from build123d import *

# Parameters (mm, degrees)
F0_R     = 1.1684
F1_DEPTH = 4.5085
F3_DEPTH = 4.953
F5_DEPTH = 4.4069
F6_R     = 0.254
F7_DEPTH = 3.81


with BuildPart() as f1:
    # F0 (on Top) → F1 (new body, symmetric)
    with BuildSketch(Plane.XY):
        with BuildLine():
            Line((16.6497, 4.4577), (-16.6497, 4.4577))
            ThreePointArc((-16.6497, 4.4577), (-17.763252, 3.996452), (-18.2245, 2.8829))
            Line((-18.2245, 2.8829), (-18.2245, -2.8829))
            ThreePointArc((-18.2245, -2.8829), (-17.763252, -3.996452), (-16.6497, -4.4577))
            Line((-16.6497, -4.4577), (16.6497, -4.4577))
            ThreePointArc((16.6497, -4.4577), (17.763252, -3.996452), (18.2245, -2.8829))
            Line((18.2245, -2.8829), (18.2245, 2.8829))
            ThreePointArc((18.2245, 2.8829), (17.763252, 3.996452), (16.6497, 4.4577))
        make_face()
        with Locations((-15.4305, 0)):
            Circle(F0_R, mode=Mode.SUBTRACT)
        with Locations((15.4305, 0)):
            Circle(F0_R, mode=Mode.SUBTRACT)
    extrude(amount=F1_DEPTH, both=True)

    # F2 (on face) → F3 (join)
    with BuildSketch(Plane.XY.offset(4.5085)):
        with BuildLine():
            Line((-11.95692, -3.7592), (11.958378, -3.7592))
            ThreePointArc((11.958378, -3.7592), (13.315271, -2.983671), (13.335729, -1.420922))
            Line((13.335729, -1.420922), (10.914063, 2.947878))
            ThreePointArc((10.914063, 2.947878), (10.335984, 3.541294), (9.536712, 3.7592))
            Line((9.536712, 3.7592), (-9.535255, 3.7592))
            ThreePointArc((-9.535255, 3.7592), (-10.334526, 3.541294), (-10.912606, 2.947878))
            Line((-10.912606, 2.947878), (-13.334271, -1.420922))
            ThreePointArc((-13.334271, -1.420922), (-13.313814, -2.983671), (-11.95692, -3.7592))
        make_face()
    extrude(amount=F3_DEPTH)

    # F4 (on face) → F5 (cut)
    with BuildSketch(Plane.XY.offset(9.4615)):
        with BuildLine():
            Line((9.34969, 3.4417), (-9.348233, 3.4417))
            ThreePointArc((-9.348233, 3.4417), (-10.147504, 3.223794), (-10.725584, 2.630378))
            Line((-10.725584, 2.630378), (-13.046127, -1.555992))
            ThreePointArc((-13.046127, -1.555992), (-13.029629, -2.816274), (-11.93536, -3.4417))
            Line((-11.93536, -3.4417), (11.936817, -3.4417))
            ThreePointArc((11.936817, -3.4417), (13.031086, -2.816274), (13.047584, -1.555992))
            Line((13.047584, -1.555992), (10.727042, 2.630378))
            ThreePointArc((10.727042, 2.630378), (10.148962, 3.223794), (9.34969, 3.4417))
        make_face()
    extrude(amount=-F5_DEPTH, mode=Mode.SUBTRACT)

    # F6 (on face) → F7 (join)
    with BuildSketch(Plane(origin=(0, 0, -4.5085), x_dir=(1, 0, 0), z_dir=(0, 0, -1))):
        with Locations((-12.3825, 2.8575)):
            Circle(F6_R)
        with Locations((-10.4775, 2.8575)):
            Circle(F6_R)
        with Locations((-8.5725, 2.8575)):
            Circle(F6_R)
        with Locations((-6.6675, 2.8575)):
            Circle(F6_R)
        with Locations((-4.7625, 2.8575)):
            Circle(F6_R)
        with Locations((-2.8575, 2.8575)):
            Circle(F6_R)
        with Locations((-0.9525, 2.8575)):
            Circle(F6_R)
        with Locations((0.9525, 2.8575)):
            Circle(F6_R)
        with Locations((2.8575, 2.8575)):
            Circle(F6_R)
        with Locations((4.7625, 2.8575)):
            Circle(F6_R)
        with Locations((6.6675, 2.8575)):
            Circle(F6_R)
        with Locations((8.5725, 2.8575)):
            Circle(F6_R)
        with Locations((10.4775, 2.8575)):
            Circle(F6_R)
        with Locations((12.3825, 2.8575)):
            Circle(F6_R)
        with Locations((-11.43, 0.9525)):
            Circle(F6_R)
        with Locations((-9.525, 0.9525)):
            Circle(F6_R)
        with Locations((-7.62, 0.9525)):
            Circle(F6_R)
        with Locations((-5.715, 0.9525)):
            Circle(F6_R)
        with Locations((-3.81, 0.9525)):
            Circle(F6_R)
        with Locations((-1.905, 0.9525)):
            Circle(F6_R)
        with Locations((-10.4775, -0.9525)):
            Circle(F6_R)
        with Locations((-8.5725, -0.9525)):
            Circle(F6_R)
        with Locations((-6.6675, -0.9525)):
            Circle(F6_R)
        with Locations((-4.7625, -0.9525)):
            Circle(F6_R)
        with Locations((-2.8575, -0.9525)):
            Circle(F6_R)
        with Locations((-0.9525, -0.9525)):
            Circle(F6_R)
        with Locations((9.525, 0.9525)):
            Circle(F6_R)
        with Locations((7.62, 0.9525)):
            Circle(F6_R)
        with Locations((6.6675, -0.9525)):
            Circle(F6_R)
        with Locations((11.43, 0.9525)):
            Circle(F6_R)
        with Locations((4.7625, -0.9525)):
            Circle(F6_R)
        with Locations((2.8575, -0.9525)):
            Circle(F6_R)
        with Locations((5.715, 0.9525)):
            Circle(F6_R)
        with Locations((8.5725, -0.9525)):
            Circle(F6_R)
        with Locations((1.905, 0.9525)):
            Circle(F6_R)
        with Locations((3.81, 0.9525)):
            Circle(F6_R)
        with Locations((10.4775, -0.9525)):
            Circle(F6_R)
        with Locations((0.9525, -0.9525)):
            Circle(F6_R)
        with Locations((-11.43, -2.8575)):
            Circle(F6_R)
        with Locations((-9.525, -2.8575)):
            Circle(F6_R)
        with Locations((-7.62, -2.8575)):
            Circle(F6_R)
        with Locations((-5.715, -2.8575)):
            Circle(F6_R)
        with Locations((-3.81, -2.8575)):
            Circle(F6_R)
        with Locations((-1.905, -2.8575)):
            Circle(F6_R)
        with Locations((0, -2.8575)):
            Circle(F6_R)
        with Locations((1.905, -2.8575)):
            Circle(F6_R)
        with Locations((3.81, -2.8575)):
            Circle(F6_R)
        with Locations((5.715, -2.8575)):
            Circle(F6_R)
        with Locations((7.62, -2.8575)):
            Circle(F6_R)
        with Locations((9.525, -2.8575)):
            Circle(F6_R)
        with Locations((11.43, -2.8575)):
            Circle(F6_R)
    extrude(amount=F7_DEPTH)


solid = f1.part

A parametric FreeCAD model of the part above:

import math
import FreeCAD as App
import Part
import Sketcher
from FreeCAD import Vector
Q = App.Units.Quantity

doc = App.newDocument("Part")
body = doc.addObject("PartDesign::Body", "Body")

sketch1 = doc.addObject("Sketcher::SketchObject", "Sketch")
body.addObject(sketch1)
sketch1.AttachmentSupport = (doc.XY_Plane, [""])
sketch1.MapMode = "FlatFace"
sketch1.addGeometry([
    Part.LineSegment(Vector(16.6, 4.5, 0), Vector(-16.6, 4.5, 0)),
    Part.ArcOfCircle(Part.Circle(Vector(-16.6, 2.9, 0), Vector(0, 0, 1), 1.6), math.radians(90), math.radians(180)),
    Part.LineSegment(Vector(-18.2, 2.9, 0), Vector(-18.2, -2.9, 0)),
    Part.ArcOfCircle(Part.Circle(Vector(-16.6, -2.9, 0), Vector(0, 0, 1), 1.6), math.radians(180), math.radians(270)),
    Part.LineSegment(Vector(-16.6, -4.5, 0), Vector(16.6, -4.5, 0)),
    Part.ArcOfCircle(Part.Circle(Vector(16.6, -2.9, 0), Vector(0, 0, 1), 1.6), math.radians(-90), math.radians(0)),
    Part.LineSegment(Vector(18.2, -2.9, 0), Vector(18.2, 2.9, 0)),
    Part.ArcOfCircle(Part.Circle(Vector(16.6, 2.9, 0), Vector(0, 0, 1), 1.6), math.radians(0), math.radians(90)),
    Part.Circle(Vector(-15.4, 0, 0), Vector(0, 0, 1), 1.2),
    Part.Circle(Vector(15.4, 0, 0), Vector(0, 0, 1), 1.2),
], False)
sketch1.addConstraint([
    Sketcher.Constraint("Tangent", 0, 2, 1, 1),
    Sketcher.Constraint("Tangent", 1, 2, 2, 1),
    Sketcher.Constraint("Tangent", 2, 2, 3, 1),
    Sketcher.Constraint("Tangent", 3, 2, 4, 1),
    Sketcher.Constraint("Tangent", 4, 2, 5, 1),
    Sketcher.Constraint("Tangent", 5, 2, 6, 1),
    Sketcher.Constraint("Tangent", 6, 2, 7, 1),
    Sketcher.Constraint("Tangent", 7, 2, 0, 1),
    Sketcher.Constraint("Horizontal", 0),
    Sketcher.Constraint("Vertical", 2),
    Sketcher.Constraint("Horizontal", 4),
    Sketcher.Constraint("Vertical", 6),
    Sketcher.Constraint("Equal", 1, 3),
    Sketcher.Constraint("Equal", 3, 5),
    Sketcher.Constraint("Equal", 5, 7),
    Sketcher.Constraint("Equal", 8, 9),
    Sketcher.Constraint("Symmetric", 1, 3, 5, 3, -1, 1),
    Sketcher.Constraint("Symmetric", 8, 3, 9, 3, -1, 1),
    Sketcher.Constraint("PointOnObject", 8, 3, -1),
    Sketcher.Constraint("Diameter", 8, Q("0.092 in")),
    Sketcher.Constraint("Radius", 1, Q("0.062 in")),
    Sketcher.Constraint("DistanceX", 0, 2, 0, 1, Q("1.311 in")),
    Sketcher.Constraint("DistanceY", 2, 2, 2, 1, Q("0.227 in")),
    Sketcher.Constraint("DistanceX", 1, 2, 8, 3, Q("0.11 in")),
])
pad1 = doc.addObject("PartDesign::Pad", "Pad")
body.addObject(pad1)
pad1.Profile = sketch1
pad1.Length = Q("0.355 in")
pad1.Midplane = True

sketch2 = doc.addObject("Sketcher::SketchObject", "Sketch001")
body.addObject(sketch2)
sketch2.AttachmentSupport = (doc.XY_Plane, [""])
sketch2.MapMode = "FlatFace"
sketch2.AttachmentOffset = App.Placement(Vector(0, 0, 0.1775 * 25.4), App.Rotation())
sketch2.addGeometry([
    Part.LineSegment(Vector(-12, -3.8, 0), Vector(12, -3.8, 0)),
    Part.ArcOfCircle(Part.Circle(Vector(12, -2.2, 0), Vector(0, 0, 1), 1.6), math.radians(-90), math.radians(29)),
    Part.LineSegment(Vector(13.3, -1.4, 0), Vector(10.9, 2.9, 0)),
    Part.ArcOfCircle(Part.Circle(Vector(9.5, 2.2, 0), Vector(0, 0, 1), 1.6), math.radians(29), math.radians(90)),
    Part.LineSegment(Vector(9.5, 3.8, 0), Vector(-9.5, 3.8, 0)),
    Part.ArcOfCircle(Part.Circle(Vector(-9.5, 2.2, 0), Vector(0, 0, 1), 1.6), math.radians(90), math.radians(151)),
    Part.LineSegment(Vector(-10.9, 2.9, 0), Vector(-13.3, -1.4, 0)),
    Part.ArcOfCircle(Part.Circle(Vector(-12, -2.2, 0), Vector(0, 0, 1), 1.6), math.radians(151), math.radians(270)),
], False)
sketch2.addConstraint([
    Sketcher.Constraint("Tangent", 0, 2, 1, 1),
    Sketcher.Constraint("Tangent", 1, 2, 2, 1),
    Sketcher.Constraint("Tangent", 2, 2, 3, 1),
    Sketcher.Constraint("Tangent", 3, 2, 4, 1),
    Sketcher.Constraint("Tangent", 4, 2, 5, 1),
    Sketcher.Constraint("Tangent", 5, 2, 6, 1),
    Sketcher.Constraint("Tangent", 6, 2, 7, 1),
    Sketcher.Constraint("Tangent", 7, 2, 0, 1),
    Sketcher.Constraint("Horizontal", 0),
    Sketcher.Constraint("Horizontal", 4),
    Sketcher.Constraint("Equal", 5, 7),
    Sketcher.Constraint("Horizontal", 1, 3, 7, 3),
    Sketcher.Constraint("Horizontal", 2, 2, 5, 2),
    Sketcher.Constraint("Horizontal", 1, 2, 6, 2),
    Sketcher.Constraint("Angle", 2, Q("119.000006 deg")),
    Sketcher.Constraint("Radius", 1, Q("0.062 in")),
    Sketcher.Constraint("DistanceY", 1, 3, -1, 1, Q("0.086 in")),
    Sketcher.Constraint("DistanceY", -1, 1, 3, 3, Q("0.0860002 in")),
    Sketcher.Constraint("DistanceX", 0, 1, 0, 2, 23.915298),
    Sketcher.Constraint("DistanceX", 7, 3, -1, 1, 11.95692),
])
pad2 = doc.addObject("PartDesign::Pad", "Pad001")
body.addObject(pad2)
pad2.Profile = sketch2
pad2.Length = Q("0.195 in")

sketch3 = doc.addObject("Sketcher::SketchObject", "Sketch002")
body.addObject(sketch3)
sketch3.AttachmentSupport = (doc.XY_Plane, [""])
sketch3.MapMode = "FlatFace"
sketch3.AttachmentOffset = App.Placement(Vector(0, 0, 0.3725 * 25.4), App.Rotation())
sketch3.addGeometry([
    Part.LineSegment(Vector(9.3, 3.4, 0), Vector(-9.3, 3.4, 0)),
    Part.ArcOfCircle(Part.Circle(Vector(-9.3, 1.9, 0), Vector(0, 0, 1), 1.6), math.radians(90), math.radians(151)),
    Part.LineSegment(Vector(-10.7, 2.6, 0), Vector(-13, -1.6, 0)),
    Part.ArcOfCircle(Part.Circle(Vector(-11.9, -2.2, 0), Vector(0, 0, 1), 1.3), math.radians(151), math.radians(270)),
    Part.LineSegment(Vector(-11.9, -3.4, 0), Vector(11.9, -3.4, 0)),
    Part.ArcOfCircle(Part.Circle(Vector(11.9, -2.2, 0), Vector(0, 0, 1), 1.3), math.radians(-90), math.radians(29)),
    Part.LineSegment(Vector(13, -1.6, 0), Vector(10.7, 2.6, 0)),
    Part.ArcOfCircle(Part.Circle(Vector(9.3, 1.9, 0), Vector(0, 0, 1), 1.6), math.radians(29), math.radians(90)),
], False)
sketch3.addConstraint([
    Sketcher.Constraint("Tangent", 0, 2, 1, 1),
    Sketcher.Constraint("Tangent", 1, 2, 2, 1),
    Sketcher.Constraint("Tangent", 2, 2, 3, 1),
    Sketcher.Constraint("Tangent", 3, 2, 4, 1),
    Sketcher.Constraint("Tangent", 4, 2, 5, 1),
    Sketcher.Constraint("Tangent", 5, 2, 6, 1),
    Sketcher.Constraint("Tangent", 6, 2, 7, 1),
    Sketcher.Constraint("Tangent", 7, 2, 0, 1),
    Sketcher.Constraint("Horizontal", 0),
    Sketcher.Constraint("Horizontal", 4),
    Sketcher.Constraint("Equal", 3, 5),
    Sketcher.Constraint("Equal", 1, 7),
    Sketcher.Constraint("Horizontal", 2, 2, 5, 2),
    Sketcher.Constraint("Radius", 3, Q("0.05 in")),
    Sketcher.Constraint("Angle", 2, Q("-119.000002 deg")),
    Sketcher.Constraint("Radius", 1, Q("0.0619999 in")),
    Sketcher.Constraint("DistanceY", 3, 3, 1, 3, Q("0.1590001 in")),
    Sketcher.Constraint("DistanceY", -1, 1, 1, 3, Q("0.0735001 in")),
    Sketcher.Constraint("DistanceX", 1, 2, 5, 3, 22.662401),
    Sketcher.Constraint("DistanceX", 3, 3, -1, 1, 11.93536),
])
pocket1 = doc.addObject("PartDesign::Pocket", "Pocket")
body.addObject(pocket1)
pocket1.Profile = sketch3
pocket1.Length = Q("0.1735 in")

sketch4 = doc.addObject("Sketcher::SketchObject", "Sketch003")
body.addObject(sketch4)
sketch4.AttachmentSupport = (doc.XY_Plane, [""])
sketch4.MapMode = "FlatFace"
sketch4.AttachmentOffset = App.Placement(Vector(0, 0, -0.1775 * 25.4), App.Rotation())
sketch4.addGeometry([
    Part.Circle(Vector(-12.38, -2.86, 0), Vector(0, 0, 1), 0.25),
    Part.Circle(Vector(-10.48, -2.86, 0), Vector(0, 0, 1), 0.25),
    Part.Circle(Vector(-8.57, -2.86, 0), Vector(0, 0, 1), 0.25),
    Part.Circle(Vector(-6.67, -2.86, 0), Vector(0, 0, 1), 0.25),
    Part.Circle(Vector(-4.76, -2.86, 0), Vector(0, 0, 1), 0.25),
    Part.Circle(Vector(-2.86, -2.86, 0), Vector(0, 0, 1), 0.25),
    Part.Circle(Vector(-0.95, -2.86, 0), Vector(0, 0, 1), 0.25),
    Part.Circle(Vector(0.95, -2.86, 0), Vector(0, 0, 1), 0.25),
    Part.Circle(Vector(2.86, -2.86, 0), Vector(0, 0, 1), 0.25),
    Part.Circle(Vector(4.76, -2.86, 0), Vector(0, 0, 1), 0.25),
    Part.Circle(Vector(6.67, -2.86, 0), Vector(0, 0, 1), 0.25),
    Part.Circle(Vector(8.57, -2.86, 0), Vector(0, 0, 1), 0.25),
    Part.Circle(Vector(10.48, -2.86, 0), Vector(0, 0, 1), 0.25),
    Part.Circle(Vector(12.38, -2.86, 0), Vector(0, 0, 1), 0.25),
    Part.Circle(Vector(-11.43, -0.95, 0), Vector(0, 0, 1), 0.25),
    Part.Circle(Vector(-9.53, -0.95, 0), Vector(0, 0, 1), 0.25),
    Part.Circle(Vector(-7.62, -0.95, 0), Vector(0, 0, 1), 0.25),
    Part.Circle(Vector(-5.71, -0.95, 0), Vector(0, 0, 1), 0.25),
    Part.Circle(Vector(-3.81, -0.95, 0), Vector(0, 0, 1), 0.25),
    Part.Circle(Vector(-1.91, -0.95, 0), Vector(0, 0, 1), 0.25),
    Part.Circle(Vector(-10.48, 0.95, 0), Vector(0, 0, 1), 0.25),
    Part.Circle(Vector(-8.57, 0.95, 0), Vector(0, 0, 1), 0.25),
    Part.Circle(Vector(-6.67, 0.95, 0), Vector(0, 0, 1), 0.25),
    Part.Circle(Vector(-4.76, 0.95, 0), Vector(0, 0, 1), 0.25),
    Part.Circle(Vector(-2.86, 0.95, 0), Vector(0, 0, 1), 0.25),
    Part.Circle(Vector(-0.95, 0.95, 0), Vector(0, 0, 1), 0.25),
    Part.Circle(Vector(9.53, -0.95, 0), Vector(0, 0, 1), 0.25),
    Part.Circle(Vector(7.62, -0.95, 0), Vector(0, 0, 1), 0.25),
    Part.Circle(Vector(6.67, 0.95, 0), Vector(0, 0, 1), 0.25),
    Part.Circle(Vector(11.43, -0.95, 0), Vector(0, 0, 1), 0.25),
    Part.Circle(Vector(4.76, 0.95, 0), Vector(0, 0, 1), 0.25),
    Part.Circle(Vector(2.86, 0.95, 0), Vector(0, 0, 1), 0.25),
    Part.Circle(Vector(5.71, -0.95, 0), Vector(0, 0, 1), 0.25),
    Part.Circle(Vector(8.57, 0.95, 0), Vector(0, 0, 1), 0.25),
    Part.Circle(Vector(1.91, -0.95, 0), Vector(0, 0, 1), 0.25),
    Part.Circle(Vector(3.81, -0.95, 0), Vector(0, 0, 1), 0.25),
    Part.Circle(Vector(10.48, 0.95, 0), Vector(0, 0, 1), 0.25),
    Part.Circle(Vector(0.95, 0.95, 0), Vector(0, 0, 1), 0.25),
    Part.Circle(Vector(-11.43, 2.86, 0), Vector(0, 0, 1), 0.25),
    Part.Circle(Vector(-9.53, 2.86, 0), Vector(0, 0, 1), 0.25),
    Part.Circle(Vector(-7.62, 2.86, 0), Vector(0, 0, 1), 0.25),
    Part.Circle(Vector(-5.71, 2.86, 0), Vector(0, 0, 1), 0.25),
    Part.Circle(Vector(-3.81, 2.86, 0), Vector(0, 0, 1), 0.25),
    Part.Circle(Vector(-1.91, 2.86, 0), Vector(0, 0, 1), 0.25),
    Part.Circle(Vector(0, 2.86, 0), Vector(0, 0, 1), 0.25),
    Part.Circle(Vector(1.91, 2.86, 0), Vector(0, 0, 1), 0.25),
    Part.Circle(Vector(3.81, 2.86, 0), Vector(0, 0, 1), 0.25),
    Part.Circle(Vector(5.71, 2.86, 0), Vector(0, 0, 1), 0.25),
    Part.Circle(Vector(7.62, 2.86, 0), Vector(0, 0, 1), 0.25),
    Part.Circle(Vector(9.53, 2.86, 0), Vector(0, 0, 1), 0.25),
    Part.Circle(Vector(11.43, 2.86, 0), Vector(0, 0, 1), 0.25),
], False)
sketch4.addConstraint([
    Sketcher.Constraint("Equal", 0, 1),
    Sketcher.Constraint("Equal", 1, 2),
    Sketcher.Constraint("Equal", 2, 3),
    Sketcher.Constraint("Equal", 3, 4),
    Sketcher.Constraint("Equal", 4, 5),
    Sketcher.Constraint("Equal", 5, 6),
    Sketcher.Constraint("Equal", 6, 7),
    Sketcher.Constraint("Equal", 7, 8),
    Sketcher.Constraint("Equal", 8, 9),
    Sketcher.Constraint("Equal", 9, 10),
    Sketcher.Constraint("Equal", 10, 11),
    Sketcher.Constraint("Equal", 11, 12),
    Sketcher.Constraint("Equal", 12, 13),
    Sketcher.Constraint("Equal", 13, 14),
    Sketcher.Constraint("Equal", 14, 15),
    Sketcher.Constraint("Equal", 15, 16),
    Sketcher.Constraint("Equal", 16, 17),
    Sketcher.Constraint("Equal", 17, 18),
    Sketcher.Constraint("Equal", 18, 19),
    Sketcher.Constraint("Equal", 19, 20),
    Sketcher.Constraint("Equal", 20, 21),
    Sketcher.Constraint("Equal", 21, 22),
    Sketcher.Constraint("Equal", 22, 23),
    Sketcher.Constraint("Equal", 23, 24),
    Sketcher.Constraint("Equal", 24, 25),
    Sketcher.Constraint("Equal", 25, 26),
    Sketcher.Constraint("Equal", 26, 27),
    Sketcher.Constraint("Equal", 27, 28),
    Sketcher.Constraint("Equal", 28, 29),
    Sketcher.Constraint("Equal", 29, 30),
    Sketcher.Constraint("Equal", 30, 31),
    Sketcher.Constraint("Equal", 31, 32),
    Sketcher.Constraint("Equal", 32, 33),
    Sketcher.Constraint("Equal", 33, 34),
    Sketcher.Constraint("Equal", 34, 35),
    Sketcher.Constraint("Equal", 35, 36),
    Sketcher.Constraint("Equal", 36, 37),
    Sketcher.Constraint("Equal", 37, 38),
    Sketcher.Constraint("Equal", 38, 39),
    Sketcher.Constraint("Equal", 39, 40),
    Sketcher.Constraint("Equal", 40, 41),
    Sketcher.Constraint("Equal", 41, 42),
    Sketcher.Constraint("Equal", 42, 43),
    Sketcher.Constraint("Equal", 43, 44),
    Sketcher.Constraint("Equal", 44, 45),
    Sketcher.Constraint("Equal", 45, 46),
    Sketcher.Constraint("Equal", 46, 47),
    Sketcher.Constraint("Equal", 47, 48),
    Sketcher.Constraint("Equal", 48, 49),
    Sketcher.Constraint("Equal", 49, 50),
    Sketcher.Constraint("Symmetric", 6, 3, 7, 3, -2),
    Sketcher.Constraint("Symmetric", 5, 3, 8, 3, -2),
    Sketcher.Constraint("Symmetric", 4, 3, 9, 3, -2),
    Sketcher.Constraint("Symmetric", 3, 3, 10, 3, -2),
    Sketcher.Constraint("Symmetric", 2, 3, 11, 3, -2),
    Sketcher.Constraint("Symmetric", 1, 3, 12, 3, -2),
    Sketcher.Constraint("Symmetric", 0, 3, 13, 3, -2),
    Sketcher.Constraint("Symmetric", 15, 3, 26, 3, -2),
    Sketcher.Constraint("Symmetric", 16, 3, 27, 3, -2),
    Sketcher.Constraint("Symmetric", 22, 3, 28, 3, -2),
    Sketcher.Constraint("Symmetric", 14, 3, 29, 3, -2),
    Sketcher.Constraint("Symmetric", 23, 3, 30, 3, -2),
    Sketcher.Constraint("Symmetric", 24, 3, 31, 3, -2),
    Sketcher.Constraint("Symmetric", 17, 3, 32, 3, -2),
    Sketcher.Constraint("Symmetric", 21, 3, 33, 3, -2),
    Sketcher.Constraint("Symmetric", 19, 3, 34, 3, -2),
    Sketcher.Constraint("Symmetric", 18, 3, 35, 3, -2),
    Sketcher.Constraint("Symmetric", 20, 3, 36, 3, -2),
    Sketcher.Constraint("Symmetric", 25, 3, 37, 3, -2),
    Sketcher.Constraint("Symmetric", 43, 3, 45, 3, -2),
    Sketcher.Constraint("Symmetric", 42, 3, 46, 3, -2),
    Sketcher.Constraint("Symmetric", 41, 3, 47, 3, -2),
    Sketcher.Constraint("Symmetric", 40, 3, 48, 3, -2),
    Sketcher.Constraint("Symmetric", 39, 3, 49, 3, -2),
    Sketcher.Constraint("Symmetric", 38, 3, 50, 3, -2),
    Sketcher.Constraint("PointOnObject", 44, 3, -2),
    Sketcher.Constraint("Horizontal", 0, 3, 1, 3),
    Sketcher.Constraint("Horizontal", 1, 3, 2, 3),
    Sketcher.Constraint("Horizontal", 2, 3, 3, 3),
    Sketcher.Constraint("Horizontal", 3, 3, 4, 3),
    Sketcher.Constraint("Horizontal", 4, 3, 5, 3),
    Sketcher.Constraint("Horizontal", 5, 3, 6, 3),
    Sketcher.Constraint("Horizontal", 14, 3, 15, 3),
    Sketcher.Constraint("Horizontal", 15, 3, 16, 3),
    Sketcher.Constraint("Horizontal", 16, 3, 17, 3),
    Sketcher.Constraint("Horizontal", 17, 3, 18, 3),
    Sketcher.Constraint("Horizontal", 18, 3, 19, 3),
    Sketcher.Constraint("Horizontal", 20, 3, 21, 3),
    Sketcher.Constraint("Horizontal", 21, 3, 22, 3),
    Sketcher.Constraint("Horizontal", 22, 3, 23, 3),
    Sketcher.Constraint("Horizontal", 23, 3, 24, 3),
    Sketcher.Constraint("Horizontal", 24, 3, 25, 3),
    Sketcher.Constraint("Horizontal", 38, 3, 39, 3),
    Sketcher.Constraint("Horizontal", 39, 3, 40, 3),
    Sketcher.Constraint("Horizontal", 40, 3, 41, 3),
    Sketcher.Constraint("Horizontal", 41, 3, 42, 3),
    Sketcher.Constraint("Horizontal", 42, 3, 43, 3),
    Sketcher.Constraint("Horizontal", 43, 3, 44, 3),
    Sketcher.Constraint("Vertical", 1, 3, 20, 3),
    Sketcher.Constraint("Vertical", 2, 3, 21, 3),
    Sketcher.Constraint("Vertical", 3, 3, 22, 3),
    Sketcher.Constraint("Vertical", 4, 3, 23, 3),
    Sketcher.Constraint("Vertical", 5, 3, 24, 3),
    Sketcher.Constraint("Vertical", 6, 3, 25, 3),
    Sketcher.Constraint("Vertical", 14, 3, 38, 3),
    Sketcher.Constraint("Vertical", 15, 3, 39, 3),
    Sketcher.Constraint("Vertical", 16, 3, 40, 3),
    Sketcher.Constraint("Vertical", 17, 3, 41, 3),
    Sketcher.Constraint("Vertical", 18, 3, 42, 3),
    Sketcher.Constraint("Vertical", 19, 3, 43, 3),
    Sketcher.Constraint("Diameter", 0, Q("0.02 in")),
    Sketcher.Constraint("DistanceX", 16, 3, -1, 1, Q("0.3 in")),
    Sketcher.Constraint("DistanceX", 0, 3, 4, 3, Q("0.3 in")),
    Sketcher.Constraint("DistanceX", 1, 3, 5, 3, Q("0.3 in")),
    Sketcher.Constraint("DistanceX", 2, 3, 6, 3, Q("0.3 in")),
    Sketcher.Constraint("DistanceX", 3, 3, 7, 3, Q("0.3 in")),
    Sketcher.Constraint("DistanceX", 4, 3, 8, 3, Q("0.3 in")),
    Sketcher.Constraint("DistanceX", 14, 3, -1, 1, Q("0.45 in")),
    Sketcher.Constraint("DistanceX", 18, 3, -1, 1, Q("0.15 in")),
    Sketcher.Constraint("DistanceX", 0, 3, 2, 3, Q("0.15 in")),
    Sketcher.Constraint("DistanceY", 1, 3, 20, 3, Q("0.15 in")),
    Sketcher.Constraint("DistanceY", 14, 3, 38, 3, Q("0.15 in")),
    Sketcher.Constraint("DistanceX", 4, 3, -1, 1, Q("0.1875 in")),
    Sketcher.Constraint("DistanceX", 15, 3, -1, 1, Q("0.375 in")),
    Sketcher.Constraint("DistanceX", 17, 3, -1, 1, Q("0.225 in")),
    Sketcher.Constraint("DistanceX", 19, 3, -1, 1, Q("0.075 in")),
    Sketcher.Constraint("DistanceY", 0, 3, 14, 3, Q("0.075 in")),
    Sketcher.Constraint("DistanceY", 0, 3, -1, 1, Q("0.1125 in")),
])
pad3 = doc.addObject("PartDesign::Pad", "Pad002")
body.addObject(pad3)
pad3.Profile = sketch4
pad3.Length = Q("0.15 in")
pad3.Reversed = True

doc.recompute()
